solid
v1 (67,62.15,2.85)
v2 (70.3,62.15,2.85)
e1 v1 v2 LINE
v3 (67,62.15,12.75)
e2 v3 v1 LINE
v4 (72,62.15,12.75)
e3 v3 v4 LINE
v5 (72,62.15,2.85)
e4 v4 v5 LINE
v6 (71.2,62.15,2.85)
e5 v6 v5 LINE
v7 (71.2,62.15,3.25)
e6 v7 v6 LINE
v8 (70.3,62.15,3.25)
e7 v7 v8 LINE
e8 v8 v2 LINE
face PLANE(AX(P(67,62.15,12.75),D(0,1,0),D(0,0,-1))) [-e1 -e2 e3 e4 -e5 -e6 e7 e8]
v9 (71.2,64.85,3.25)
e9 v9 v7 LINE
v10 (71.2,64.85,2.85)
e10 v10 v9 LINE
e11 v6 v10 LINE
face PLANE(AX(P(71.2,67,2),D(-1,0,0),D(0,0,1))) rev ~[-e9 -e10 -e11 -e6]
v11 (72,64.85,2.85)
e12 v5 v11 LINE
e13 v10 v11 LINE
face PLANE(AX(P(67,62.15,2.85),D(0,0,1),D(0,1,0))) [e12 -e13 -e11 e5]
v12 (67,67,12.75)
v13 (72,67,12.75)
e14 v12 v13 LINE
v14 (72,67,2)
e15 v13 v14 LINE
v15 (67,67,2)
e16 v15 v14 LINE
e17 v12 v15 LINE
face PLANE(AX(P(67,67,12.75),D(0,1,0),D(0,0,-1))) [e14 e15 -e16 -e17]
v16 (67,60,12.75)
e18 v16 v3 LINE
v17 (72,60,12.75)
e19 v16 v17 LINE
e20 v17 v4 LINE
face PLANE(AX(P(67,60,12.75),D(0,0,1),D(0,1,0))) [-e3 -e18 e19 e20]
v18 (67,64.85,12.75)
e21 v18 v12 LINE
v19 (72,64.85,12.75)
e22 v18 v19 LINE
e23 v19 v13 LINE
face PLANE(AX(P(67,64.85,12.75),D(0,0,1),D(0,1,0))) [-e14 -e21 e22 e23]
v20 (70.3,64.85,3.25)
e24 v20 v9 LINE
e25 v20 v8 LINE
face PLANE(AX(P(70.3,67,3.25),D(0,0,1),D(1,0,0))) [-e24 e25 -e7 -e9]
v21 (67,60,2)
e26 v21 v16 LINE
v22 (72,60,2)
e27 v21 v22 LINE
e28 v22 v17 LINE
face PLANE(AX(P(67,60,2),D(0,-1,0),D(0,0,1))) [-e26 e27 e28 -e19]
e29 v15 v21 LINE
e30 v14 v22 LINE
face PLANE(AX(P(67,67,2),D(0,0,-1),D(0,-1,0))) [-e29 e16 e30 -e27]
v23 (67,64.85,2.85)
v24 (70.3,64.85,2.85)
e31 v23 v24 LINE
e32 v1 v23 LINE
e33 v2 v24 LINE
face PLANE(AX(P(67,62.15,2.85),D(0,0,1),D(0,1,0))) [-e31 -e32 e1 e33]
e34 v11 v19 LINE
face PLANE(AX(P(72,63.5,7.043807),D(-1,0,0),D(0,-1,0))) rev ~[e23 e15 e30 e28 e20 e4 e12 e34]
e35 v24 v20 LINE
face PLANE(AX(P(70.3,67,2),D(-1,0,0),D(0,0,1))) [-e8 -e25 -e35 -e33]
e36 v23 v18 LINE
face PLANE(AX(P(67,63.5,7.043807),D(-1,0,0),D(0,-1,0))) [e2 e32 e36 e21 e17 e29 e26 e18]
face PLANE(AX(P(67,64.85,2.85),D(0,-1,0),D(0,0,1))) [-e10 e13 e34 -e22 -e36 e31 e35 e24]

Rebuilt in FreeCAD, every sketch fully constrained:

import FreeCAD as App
import Part
import Sketcher


def add_polygon(sketch, points):
    """Adds a closed chain of lines whose ends are joined by coincident constraints."""
    first, n = sketch.GeometryCount, len(points)
    for a, b in zip(points, points[1:] + points[:1]):
        sketch.addGeometry(Part.LineSegment(App.Vector(*a, 0), App.Vector(*b, 0)), False)
    for i in range(n):
        sketch.addConstraint(Sketcher.Constraint("Coincident", first + i, 2, first + (i + 1) % n, 1))

doc = App.newDocument("Part")
params = doc.addObject("Spreadsheet::Sheet", "Params")
for row, (alias, value) in enumerate([
    ("sketch1_width", "7 mm"),
    ("sketch1_width2", "2.7 mm"),
    ("sketch1_height", "9.9 mm"),
    ("sketch1_height2", "10.75 mm"),
    ("pad1_length", "5 mm"),
    ("sketch2_width", "0.9 mm"),
    ("sketch2_height", "1.25 mm"),
    ("pad2_length", "7 mm"),
], start=1):
    params.set(f"A{row}", alias)
    params.set(f"B{row}", "=" + value)
    params.setAlias(f"B{row}", alias)

body = doc.addObject("PartDesign::Body", "Body")

# Sketch on YZ plane
sketch1 = body.newObject("Sketcher::SketchObject", "Sketch")
sketch1.AttachmentSupport = (doc.getObject("YZ_Plane"), [""])
sketch1.MapMode = "FlatFace"
sketch1.AttachmentOffset = App.Placement(App.Vector(0, 0, 67), App.Rotation())
add_polygon(sketch1, [(62.1, 12.8), (60, 12.8), (60, 2), (67, 2), (67, 12.8), (64.8, 12.8), (64.8, 2.9), (62.1, 2.9)])  # lines 0-7
sketch1.addConstraint([
    Sketcher.Constraint("Horizontal", 0),
    Sketcher.Constraint("Vertical", 1),
    Sketcher.Constraint("Horizontal", 2),
    Sketcher.Constraint("Vertical", 3),
    Sketcher.Constraint("Horizontal", 4),
    Sketcher.Constraint("Vertical", 5),
    Sketcher.Constraint("Horizontal", 6),
    Sketcher.Constraint("Vertical", 7),
    Sketcher.Constraint("Horizontal", 0, 2, 3, 2),
    Sketcher.Constraint("Equal", 0, 4),
    Sketcher.Constraint("DistanceX", 2, 1, 2, 2, 7.0),
    Sketcher.Constraint("DistanceX", 6, 2, 6, 1, 2.7),
    Sketcher.Constraint("DistanceY", 5, 2, 5, 1, 9.9),
    Sketcher.Constraint("DistanceX", -1, 1, 0, 2, 60.0),
    Sketcher.Constraint("DistanceY", -1, 1, 1, 2, 2.0),
    Sketcher.Constraint("DistanceY", 1, 2, 1, 1, 10.75),
])
sketch1.setExpression("Constraints[18]", "Params.sketch1_width")
sketch1.setExpression("Constraints[19]", "Params.sketch1_width2")
sketch1.setExpression("Constraints[20]", "Params.sketch1_height")
sketch1.setExpression("Constraints[23]", "Params.sketch1_height2")
pad1 = body.newObject("PartDesign::Pad", "Pad")
pad1.Profile = sketch1
pad1.setExpression("Length", "Params.pad1_length")
body2 = doc.addObject("PartDesign::Body", "Body001")

# Sketch on XZ plane
sketch2 = body2.newObject("Sketcher::SketchObject", "Sketch001")
sketch2.AttachmentSupport = (doc.getObject("XZ_Plane001"), [""])
sketch2.MapMode = "FlatFace"
add_polygon(sketch2, [(70.3, 3.2), (70.3, 2), (71.2, 2), (71.2, 3.2)])  # lines 0-3
sketch2.addConstraint([
    Sketcher.Constraint("Vertical", 0),
    Sketcher.Constraint("Horizontal", 1),
    Sketcher.Constraint("Vertical", 2),
    Sketcher.Constraint("Horizontal", 3),
    Sketcher.Constraint("DistanceX", 1, 1, 1, 2, 0.9),
    Sketcher.Constraint("DistanceY", -1, 1, 0, 2, 2.0),
    Sketcher.Constraint("DistanceY", 0, 2, 0, 1, 1.25),
    Sketcher.Constraint("DistanceX", -1, 1, 0, 2, 70.3),
])
sketch2.setExpression("Constraints[8]", "Params.sketch2_width")
sketch2.setExpression("Constraints[10]", "Params.sketch2_height")
pad2 = body2.newObject("PartDesign::Pad", "Pad001")
pad2.Profile = sketch2
pad2.setExpression("Length", "Params.pad2_length")
body3 = doc.addObject("PartDesign::Body", "Body002")
doc.recompute()

body2.Placement = App.Placement(App.Vector(0, 67, 0), App.Rotation(App.Vector(0, 0, 1), 0))
boolean = body3.newObject("PartDesign::Boolean", "Boolean")
boolean.Type = "Fuse"
boolean.addObjects([body2])
doc.recompute()

boolean2 = body3.newObject("PartDesign::Boolean", "Boolean001")
boolean2.Type = "Fuse"
boolean2.addObjects([body])

doc.recompute()
